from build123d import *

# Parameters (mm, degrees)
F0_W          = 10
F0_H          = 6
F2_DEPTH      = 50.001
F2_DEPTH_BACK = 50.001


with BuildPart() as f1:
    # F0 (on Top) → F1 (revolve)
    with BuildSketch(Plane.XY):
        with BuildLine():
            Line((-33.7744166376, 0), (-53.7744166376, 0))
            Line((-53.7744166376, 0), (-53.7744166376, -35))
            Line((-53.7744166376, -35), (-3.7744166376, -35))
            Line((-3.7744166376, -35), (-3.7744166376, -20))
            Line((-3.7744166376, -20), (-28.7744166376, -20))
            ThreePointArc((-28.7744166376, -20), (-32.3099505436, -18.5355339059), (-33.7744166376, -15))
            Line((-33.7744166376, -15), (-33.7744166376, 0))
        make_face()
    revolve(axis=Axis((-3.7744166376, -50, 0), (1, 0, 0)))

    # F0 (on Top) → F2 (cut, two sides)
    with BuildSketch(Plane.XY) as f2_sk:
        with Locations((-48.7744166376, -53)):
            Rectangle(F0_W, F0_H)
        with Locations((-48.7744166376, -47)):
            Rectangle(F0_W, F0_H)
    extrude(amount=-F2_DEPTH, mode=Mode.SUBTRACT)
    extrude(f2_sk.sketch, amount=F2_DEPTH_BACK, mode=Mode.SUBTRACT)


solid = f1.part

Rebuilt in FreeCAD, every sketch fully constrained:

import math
import FreeCAD as App
import Part
import Sketcher
from FreeCAD import Vector

doc = App.newDocument("Part")
body = doc.addObject("PartDesign::Body", "Body")

sketch1 = body.newObject("Sketcher::SketchObject", "Sketch")
sketch1.AttachmentSupport = (doc.getObject("XY_Plane"), [""])
sketch1.MapMode = "FlatFace"
sketch1.addGeometry([
    Part.LineSegment(Vector(-34, 0, 0), Vector(-54, 0, 0)),
    Part.LineSegment(Vector(-54, 0, 0), Vector(-54, -35, 0)),
    Part.LineSegment(Vector(-54, -35, 0), Vector(-4, -35, 0)),
    Part.LineSegment(Vector(-4, -35, 0), Vector(-4, -20, 0)),
    Part.LineSegment(Vector(-4, -20, 0), Vector(-29, -20, 0)),
    Part.ArcOfCircle(Part.Circle(Vector(-29, -15, 0), Vector(0, 0, 1), 5), math.radians(180), math.radians(270)),
    Part.LineSegment(Vector(-34, -15, 0), Vector(-34, 0, 0)),
], False)
sketch1.addGeometry(Part.LineSegment(Vector(-54, -50, 0), Vector(-4, -50, 0)), True)
sketch1.addConstraint([
    Sketcher.Constraint("Coincident", 0, 2, 1, 1),
    Sketcher.Constraint("Coincident", 1, 2, 2, 1),
    Sketcher.Constraint("Coincident", 2, 2, 3, 1),
    Sketcher.Constraint("Coincident", 3, 2, 4, 1),
    Sketcher.Constraint("Tangent", 4, 2, 5, 2),
    Sketcher.Constraint("Tangent", 5, 1, 6, 1),
    Sketcher.Constraint("Coincident", 6, 2, 0, 1),
    Sketcher.Constraint("Horizontal", 0),
    Sketcher.Constraint("Vertical", 1),
    Sketcher.Constraint("Horizontal", 2),
    Sketcher.Constraint("Vertical", 3),
    Sketcher.Constraint("Horizontal", 4),
    Sketcher.Constraint("Vertical", 6),
    Sketcher.Constraint("Horizontal", 7),
    Sketcher.Constraint("PointOnObject", 0, 2, -1),
    Sketcher.Constraint("Vertical", 1, 2, 7, 1),
    Sketcher.Constraint("Vertical", 3, 2, 7, 2),
    Sketcher.Constraint("Equal", 3, 6),
    Sketcher.Constraint("Radius", 5, 5.0),
    Sketcher.Constraint("DistanceX", 0, 2, 0, 1, 20.0),
    Sketcher.Constraint("DistanceX", 2, 1, 2, 2, 50.0),
    Sketcher.Constraint("DistanceY", 1, 2, 1, 1, 35.0),
    Sketcher.Constraint("DistanceY", 7, 1, -1, 1, 50.0),
    Sketcher.Constraint("DistanceX", 5, 3, -1, 1, 28.774417),
])
revolution = body.newObject("PartDesign::Revolution", "Revolution")
revolution.Profile = sketch1
revolution.ReferenceAxis = (sketch1, ["Axis0"])
revolution.Angle = 360

sketch2 = body.newObject("Sketcher::SketchObject", "Sketch001")
sketch2.AttachmentSupport = (doc.getObject("XY_Plane"), [""])
sketch2.MapMode = "FlatFace"
sketch2.addGeometry([
    Part.LineSegment(Vector(-54, -56, 0), Vector(-44, -56, 0)),
    Part.LineSegment(Vector(-44, -56, 0), Vector(-44, -44, 0)),
    Part.LineSegment(Vector(-44, -44, 0), Vector(-54, -44, 0)),
    Part.LineSegment(Vector(-54, -44, 0), Vector(-54, -56, 0)),
], False)
sketch2.addConstraint([
    Sketcher.Constraint("Coincident", 0, 2, 1, 1),
    Sketcher.Constraint("Coincident", 1, 2, 2, 1),
    Sketcher.Constraint("Coincident", 2, 2, 3, 1),
    Sketcher.Constraint("Coincident", 3, 2, 0, 1),
    Sketcher.Constraint("Horizontal", 0),
    Sketcher.Constraint("Vertical", 1),
    Sketcher.Constraint("Horizontal", 2),
    Sketcher.Constraint("Vertical", 3),
    Sketcher.Constraint("DistanceX", 0, 1, 0, 2, 10.0),
    Sketcher.Constraint("DistanceY", 1, 1, 1, 2, 12.0),
    Sketcher.Constraint("DistanceY", 0, 2, -1, 1, 56.0),
    Sketcher.Constraint("DistanceX", 0, 2, -1, 1, 43.774417),
])
pocket1 = body.newObject("PartDesign::Pocket", "Pocket")
pocket1.Profile = sketch2
pocket1.Type = "ThroughAll"
pocket1.Midplane = True

doc.recompute()
